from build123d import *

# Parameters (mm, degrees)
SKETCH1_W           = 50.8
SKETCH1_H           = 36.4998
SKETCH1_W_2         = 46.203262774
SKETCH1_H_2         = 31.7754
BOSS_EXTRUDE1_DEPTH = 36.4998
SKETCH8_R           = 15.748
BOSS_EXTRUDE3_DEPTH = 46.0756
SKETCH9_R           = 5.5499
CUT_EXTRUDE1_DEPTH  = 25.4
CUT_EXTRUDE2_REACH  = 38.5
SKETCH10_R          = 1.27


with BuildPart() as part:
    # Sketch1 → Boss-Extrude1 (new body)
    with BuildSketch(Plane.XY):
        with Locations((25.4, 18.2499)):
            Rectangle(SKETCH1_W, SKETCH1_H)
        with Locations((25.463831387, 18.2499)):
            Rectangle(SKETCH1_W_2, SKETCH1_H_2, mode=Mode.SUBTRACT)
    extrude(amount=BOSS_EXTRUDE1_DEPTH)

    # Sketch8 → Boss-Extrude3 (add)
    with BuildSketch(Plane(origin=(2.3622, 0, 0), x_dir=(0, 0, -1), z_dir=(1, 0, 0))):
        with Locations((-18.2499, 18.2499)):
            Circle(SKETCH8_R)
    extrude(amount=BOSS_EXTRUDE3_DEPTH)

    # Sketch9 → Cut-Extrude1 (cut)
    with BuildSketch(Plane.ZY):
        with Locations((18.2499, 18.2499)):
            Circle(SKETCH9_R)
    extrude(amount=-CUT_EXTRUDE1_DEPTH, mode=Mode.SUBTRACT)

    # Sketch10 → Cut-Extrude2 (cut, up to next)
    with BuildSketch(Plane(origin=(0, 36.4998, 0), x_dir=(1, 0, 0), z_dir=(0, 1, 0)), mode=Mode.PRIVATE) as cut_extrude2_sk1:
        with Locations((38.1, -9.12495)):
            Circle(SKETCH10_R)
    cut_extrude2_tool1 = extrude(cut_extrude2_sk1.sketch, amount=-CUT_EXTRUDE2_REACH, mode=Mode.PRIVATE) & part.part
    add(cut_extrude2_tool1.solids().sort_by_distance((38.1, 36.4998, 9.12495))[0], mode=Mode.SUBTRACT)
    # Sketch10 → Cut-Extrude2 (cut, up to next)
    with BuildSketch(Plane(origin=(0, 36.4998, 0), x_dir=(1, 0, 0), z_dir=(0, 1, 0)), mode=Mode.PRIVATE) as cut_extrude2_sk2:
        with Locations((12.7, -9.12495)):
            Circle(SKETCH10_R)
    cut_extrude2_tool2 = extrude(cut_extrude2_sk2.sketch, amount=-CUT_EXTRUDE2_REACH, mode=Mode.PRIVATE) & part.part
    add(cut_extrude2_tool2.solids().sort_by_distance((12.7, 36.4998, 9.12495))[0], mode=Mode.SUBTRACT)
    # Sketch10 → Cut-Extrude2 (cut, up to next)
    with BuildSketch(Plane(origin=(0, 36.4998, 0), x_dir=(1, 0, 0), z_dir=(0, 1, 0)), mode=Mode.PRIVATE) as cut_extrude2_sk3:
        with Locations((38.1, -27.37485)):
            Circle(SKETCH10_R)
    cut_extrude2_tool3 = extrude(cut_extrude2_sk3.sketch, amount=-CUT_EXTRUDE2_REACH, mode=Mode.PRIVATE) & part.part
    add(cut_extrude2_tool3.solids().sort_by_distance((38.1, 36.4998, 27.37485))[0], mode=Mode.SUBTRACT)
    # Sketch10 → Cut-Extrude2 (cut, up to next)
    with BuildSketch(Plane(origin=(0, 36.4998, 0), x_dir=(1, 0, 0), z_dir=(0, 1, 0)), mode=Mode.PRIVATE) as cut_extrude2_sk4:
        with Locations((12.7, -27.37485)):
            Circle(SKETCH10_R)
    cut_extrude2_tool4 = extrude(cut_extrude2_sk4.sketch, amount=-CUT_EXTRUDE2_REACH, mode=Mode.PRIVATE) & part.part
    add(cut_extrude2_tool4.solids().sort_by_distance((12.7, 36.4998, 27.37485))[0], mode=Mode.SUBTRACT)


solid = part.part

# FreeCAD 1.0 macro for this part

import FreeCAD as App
import Part
import Sketcher
Q = App.Units.Quantity


def add_polygon(sketch, points):
    """Adds a closed chain of lines whose ends are joined by coincident constraints."""
    first, n = sketch.GeometryCount, len(points)
    for a, b in zip(points, points[1:] + points[:1]):
        sketch.addGeometry(Part.LineSegment(App.Vector(*a, 0), App.Vector(*b, 0)), False)
    for i in range(n):
        sketch.addConstraint(Sketcher.Constraint("Coincident", first + i, 2, first + (i + 1) % n, 1))

doc = App.newDocument("Part")
body = doc.addObject("PartDesign::Body", "Body")

# Sketch on XY plane
sketch1 = body.newObject("Sketcher::SketchObject", "Sketch")
sketch1.AttachmentSupport = (doc.getObject("XY_Plane"), [""])
sketch1.MapMode = "FlatFace"
add_polygon(sketch1, [(0, 36), (0, 0), (51, 0), (51, 36)])  # lines 0-3
add_polygon(sketch1, [(49, 2), (2, 2), (2, 34), (49, 34)])  # lines 4-7
sketch1.addConstraint(Sketcher.Constraint("Vertical", 0))
sketch1.addConstraint(Sketcher.Constraint("Horizontal", 1))
sketch1.addConstraint(Sketcher.Constraint("Vertical", 2))
sketch1.addConstraint(Sketcher.Constraint("Horizontal", 3))
sketch1.addConstraint(Sketcher.Constraint("Horizontal", 4))
sketch1.addConstraint(Sketcher.Constraint("Vertical", 5))
sketch1.addConstraint(Sketcher.Constraint("Horizontal", 6))
sketch1.addConstraint(Sketcher.Constraint("Vertical", 7))
sketch1.addConstraint(Sketcher.Constraint("Coincident", 0, 2, -1, 1))
sketch1.addConstraint(Sketcher.Constraint("DistanceX", 1, 1, 1, 2, Q("2 in")))
sketch1.addConstraint(Sketcher.Constraint("DistanceY", 0, 2, 0, 1, Q("1.437 in")))
sketch1.addConstraint(Sketcher.Constraint("DistanceY", 5, 1, 5, 2, Q("1.251 in")))
sketch1.addConstraint(Sketcher.Constraint("DistanceX", -1, 1, 4, 2, Q("0.093 in")))
sketch1.addConstraint(Sketcher.Constraint("DistanceY", -1, 1, 4, 2, Q("0.093 in")))
sketch1.addConstraint(Sketcher.Constraint("DistanceX", 4, 2, 4, 1, 46.203263))
pad1 = body.newObject("PartDesign::Pad", "Pad")
pad1.Profile = sketch1
pad1.Length = Q("1.437 in")

# Sketch on YZ plane
sketch2 = body.newObject("Sketcher::SketchObject", "Sketch001")
sketch2.AttachmentSupport = (doc.getObject("YZ_Plane"), [""])
sketch2.MapMode = "FlatFace"
sketch2.AttachmentOffset = App.Placement(App.Vector(0, 0, 0.093 * 25.4), App.Rotation())
sketch2.addGeometry(Part.Circle(App.Vector(18, 18, 0), App.Vector(0, 0, 1), 16), False)
sketch2.addConstraint(Sketcher.Constraint("Diameter", 0, Q("1.24 in")))
sketch2.addConstraint(Sketcher.Constraint("DistanceX", -1, 1, 0, 3, Q("0.7185 in")))
sketch2.addConstraint(Sketcher.Constraint("DistanceY", -1, 1, 0, 3, Q("0.7185 in")))
pad2 = body.newObject("PartDesign::Pad", "Pad001")
pad2.Profile = sketch2
pad2.Length = Q("1.814 in")

# Sketch on YZ plane
sketch3 = body.newObject("Sketcher::SketchObject", "Sketch002")
sketch3.AttachmentSupport = (doc.getObject("YZ_Plane"), [""])
sketch3.MapMode = "FlatFace"
sketch3.addGeometry(Part.Circle(App.Vector(18, 18, 0), App.Vector(0, 0, 1), 6), False)
sketch3.addConstraint(Sketcher.Constraint("Diameter", 0, Q("0.437 in")))
sketch3.addConstraint(Sketcher.Constraint("DistanceX", -1, 1, 0, 3, Q("0.7185 in")))
sketch3.addConstraint(Sketcher.Constraint("DistanceY", -1, 1, 0, 3, Q("0.7185 in")))
pocket1 = body.newObject("PartDesign::Pocket", "Pocket")
pocket1.Profile = sketch3
pocket1.Length = Q("1 in")
pocket1.Reversed = True

# Sketch on XZ plane
sketch4 = body.newObject("Sketcher::SketchObject", "Sketch003")
sketch4.AttachmentSupport = (doc.getObject("XZ_Plane"), [""])
sketch4.MapMode = "FlatFace"
sketch4.AttachmentOffset = App.Placement(App.Vector(0, 0, -1.437 * 25.4), App.Rotation())
sketch4.addGeometry(Part.Circle(App.Vector(38.1, 9.1, 0), App.Vector(0, 0, 1), 1.3), False)
sketch4.addConstraint(Sketcher.Constraint("Diameter", 0, Q("0.1 in")))
sketch4.addConstraint(Sketcher.Constraint("DistanceX", -1, 1, 0, 3, Q("1.5 in")))
sketch4.addConstraint(Sketcher.Constraint("DistanceY", -1, 1, 0, 3, 9.12495))
pocket2 = body.newObject("PartDesign::Pocket", "Pocket001")
pocket2.Profile = sketch4
pocket2.Type = "UpToFirst"
pocket2.Reversed = True

# Sketch on XZ plane
sketch5 = body.newObject("Sketcher::SketchObject", "Sketch004")
sketch5.AttachmentSupport = (doc.getObject("XZ_Plane"), [""])
sketch5.MapMode = "FlatFace"
sketch5.AttachmentOffset = App.Placement(App.Vector(0, 0, -1.437 * 25.4), App.Rotation())
sketch5.addGeometry(Part.Circle(App.Vector(12.7, 9.1, 0), App.Vector(0, 0, 1), 1.3), False)
sketch5.addConstraint(Sketcher.Constraint("Diameter", 0, Q("0.1 in")))
sketch5.addConstraint(Sketcher.Constraint("DistanceX", -1, 1, 0, 3, Q("0.5 in")))
sketch5.addConstraint(Sketcher.Constraint("DistanceY", -1, 1, 0, 3, 9.12495))
pocket3 = body.newObject("PartDesign::Pocket", "Pocket002")
pocket3.Profile = sketch5
pocket3.Type = "UpToFirst"
pocket3.Reversed = True

# Sketch on XZ plane
sketch6 = body.newObject("Sketcher::SketchObject", "Sketch005")
sketch6.AttachmentSupport = (doc.getObject("XZ_Plane"), [""])
sketch6.MapMode = "FlatFace"
sketch6.AttachmentOffset = App.Placement(App.Vector(0, 0, -1.437 * 25.4), App.Rotation())
sketch6.addGeometry(Part.Circle(App.Vector(38.1, 27.4, 0), App.Vector(0, 0, 1), 1.3), False)
sketch6.addConstraint(Sketcher.Constraint("Diameter", 0, Q("0.1 in")))
sketch6.addConstraint(Sketcher.Constraint("DistanceX", -1, 1, 0, 3, Q("1.5 in")))
sketch6.addConstraint(Sketcher.Constraint("DistanceY", -1, 1, 0, 3, 27.37485))
pocket4 = body.newObject("PartDesign::Pocket", "Pocket003")
pocket4.Profile = sketch6
pocket4.Type = "UpToFirst"
pocket4.Reversed = True

# Sketch on XZ plane
sketch7 = body.newObject("Sketcher::SketchObject", "Sketch006")
sketch7.AttachmentSupport = (doc.getObject("XZ_Plane"), [""])
sketch7.MapMode = "FlatFace"
sketch7.AttachmentOffset = App.Placement(App.Vector(0, 0, -1.437 * 25.4), App.Rotation())
sketch7.addGeometry(Part.Circle(App.Vector(12.7, 27.4, 0), App.Vector(0, 0, 1), 1.3), False)
sketch7.addConstraint(Sketcher.Constraint("Diameter", 0, Q("0.1 in")))
sketch7.addConstraint(Sketcher.Constraint("DistanceX", -1, 1, 0, 3, Q("0.5 in")))
sketch7.addConstraint(Sketcher.Constraint("DistanceY", -1, 1, 0, 3, 27.37485))
pocket5 = body.newObject("PartDesign::Pocket", "Pocket004")
pocket5.Profile = sketch7
pocket5.Type = "UpToFirst"
pocket5.Reversed = True

doc.recompute()
